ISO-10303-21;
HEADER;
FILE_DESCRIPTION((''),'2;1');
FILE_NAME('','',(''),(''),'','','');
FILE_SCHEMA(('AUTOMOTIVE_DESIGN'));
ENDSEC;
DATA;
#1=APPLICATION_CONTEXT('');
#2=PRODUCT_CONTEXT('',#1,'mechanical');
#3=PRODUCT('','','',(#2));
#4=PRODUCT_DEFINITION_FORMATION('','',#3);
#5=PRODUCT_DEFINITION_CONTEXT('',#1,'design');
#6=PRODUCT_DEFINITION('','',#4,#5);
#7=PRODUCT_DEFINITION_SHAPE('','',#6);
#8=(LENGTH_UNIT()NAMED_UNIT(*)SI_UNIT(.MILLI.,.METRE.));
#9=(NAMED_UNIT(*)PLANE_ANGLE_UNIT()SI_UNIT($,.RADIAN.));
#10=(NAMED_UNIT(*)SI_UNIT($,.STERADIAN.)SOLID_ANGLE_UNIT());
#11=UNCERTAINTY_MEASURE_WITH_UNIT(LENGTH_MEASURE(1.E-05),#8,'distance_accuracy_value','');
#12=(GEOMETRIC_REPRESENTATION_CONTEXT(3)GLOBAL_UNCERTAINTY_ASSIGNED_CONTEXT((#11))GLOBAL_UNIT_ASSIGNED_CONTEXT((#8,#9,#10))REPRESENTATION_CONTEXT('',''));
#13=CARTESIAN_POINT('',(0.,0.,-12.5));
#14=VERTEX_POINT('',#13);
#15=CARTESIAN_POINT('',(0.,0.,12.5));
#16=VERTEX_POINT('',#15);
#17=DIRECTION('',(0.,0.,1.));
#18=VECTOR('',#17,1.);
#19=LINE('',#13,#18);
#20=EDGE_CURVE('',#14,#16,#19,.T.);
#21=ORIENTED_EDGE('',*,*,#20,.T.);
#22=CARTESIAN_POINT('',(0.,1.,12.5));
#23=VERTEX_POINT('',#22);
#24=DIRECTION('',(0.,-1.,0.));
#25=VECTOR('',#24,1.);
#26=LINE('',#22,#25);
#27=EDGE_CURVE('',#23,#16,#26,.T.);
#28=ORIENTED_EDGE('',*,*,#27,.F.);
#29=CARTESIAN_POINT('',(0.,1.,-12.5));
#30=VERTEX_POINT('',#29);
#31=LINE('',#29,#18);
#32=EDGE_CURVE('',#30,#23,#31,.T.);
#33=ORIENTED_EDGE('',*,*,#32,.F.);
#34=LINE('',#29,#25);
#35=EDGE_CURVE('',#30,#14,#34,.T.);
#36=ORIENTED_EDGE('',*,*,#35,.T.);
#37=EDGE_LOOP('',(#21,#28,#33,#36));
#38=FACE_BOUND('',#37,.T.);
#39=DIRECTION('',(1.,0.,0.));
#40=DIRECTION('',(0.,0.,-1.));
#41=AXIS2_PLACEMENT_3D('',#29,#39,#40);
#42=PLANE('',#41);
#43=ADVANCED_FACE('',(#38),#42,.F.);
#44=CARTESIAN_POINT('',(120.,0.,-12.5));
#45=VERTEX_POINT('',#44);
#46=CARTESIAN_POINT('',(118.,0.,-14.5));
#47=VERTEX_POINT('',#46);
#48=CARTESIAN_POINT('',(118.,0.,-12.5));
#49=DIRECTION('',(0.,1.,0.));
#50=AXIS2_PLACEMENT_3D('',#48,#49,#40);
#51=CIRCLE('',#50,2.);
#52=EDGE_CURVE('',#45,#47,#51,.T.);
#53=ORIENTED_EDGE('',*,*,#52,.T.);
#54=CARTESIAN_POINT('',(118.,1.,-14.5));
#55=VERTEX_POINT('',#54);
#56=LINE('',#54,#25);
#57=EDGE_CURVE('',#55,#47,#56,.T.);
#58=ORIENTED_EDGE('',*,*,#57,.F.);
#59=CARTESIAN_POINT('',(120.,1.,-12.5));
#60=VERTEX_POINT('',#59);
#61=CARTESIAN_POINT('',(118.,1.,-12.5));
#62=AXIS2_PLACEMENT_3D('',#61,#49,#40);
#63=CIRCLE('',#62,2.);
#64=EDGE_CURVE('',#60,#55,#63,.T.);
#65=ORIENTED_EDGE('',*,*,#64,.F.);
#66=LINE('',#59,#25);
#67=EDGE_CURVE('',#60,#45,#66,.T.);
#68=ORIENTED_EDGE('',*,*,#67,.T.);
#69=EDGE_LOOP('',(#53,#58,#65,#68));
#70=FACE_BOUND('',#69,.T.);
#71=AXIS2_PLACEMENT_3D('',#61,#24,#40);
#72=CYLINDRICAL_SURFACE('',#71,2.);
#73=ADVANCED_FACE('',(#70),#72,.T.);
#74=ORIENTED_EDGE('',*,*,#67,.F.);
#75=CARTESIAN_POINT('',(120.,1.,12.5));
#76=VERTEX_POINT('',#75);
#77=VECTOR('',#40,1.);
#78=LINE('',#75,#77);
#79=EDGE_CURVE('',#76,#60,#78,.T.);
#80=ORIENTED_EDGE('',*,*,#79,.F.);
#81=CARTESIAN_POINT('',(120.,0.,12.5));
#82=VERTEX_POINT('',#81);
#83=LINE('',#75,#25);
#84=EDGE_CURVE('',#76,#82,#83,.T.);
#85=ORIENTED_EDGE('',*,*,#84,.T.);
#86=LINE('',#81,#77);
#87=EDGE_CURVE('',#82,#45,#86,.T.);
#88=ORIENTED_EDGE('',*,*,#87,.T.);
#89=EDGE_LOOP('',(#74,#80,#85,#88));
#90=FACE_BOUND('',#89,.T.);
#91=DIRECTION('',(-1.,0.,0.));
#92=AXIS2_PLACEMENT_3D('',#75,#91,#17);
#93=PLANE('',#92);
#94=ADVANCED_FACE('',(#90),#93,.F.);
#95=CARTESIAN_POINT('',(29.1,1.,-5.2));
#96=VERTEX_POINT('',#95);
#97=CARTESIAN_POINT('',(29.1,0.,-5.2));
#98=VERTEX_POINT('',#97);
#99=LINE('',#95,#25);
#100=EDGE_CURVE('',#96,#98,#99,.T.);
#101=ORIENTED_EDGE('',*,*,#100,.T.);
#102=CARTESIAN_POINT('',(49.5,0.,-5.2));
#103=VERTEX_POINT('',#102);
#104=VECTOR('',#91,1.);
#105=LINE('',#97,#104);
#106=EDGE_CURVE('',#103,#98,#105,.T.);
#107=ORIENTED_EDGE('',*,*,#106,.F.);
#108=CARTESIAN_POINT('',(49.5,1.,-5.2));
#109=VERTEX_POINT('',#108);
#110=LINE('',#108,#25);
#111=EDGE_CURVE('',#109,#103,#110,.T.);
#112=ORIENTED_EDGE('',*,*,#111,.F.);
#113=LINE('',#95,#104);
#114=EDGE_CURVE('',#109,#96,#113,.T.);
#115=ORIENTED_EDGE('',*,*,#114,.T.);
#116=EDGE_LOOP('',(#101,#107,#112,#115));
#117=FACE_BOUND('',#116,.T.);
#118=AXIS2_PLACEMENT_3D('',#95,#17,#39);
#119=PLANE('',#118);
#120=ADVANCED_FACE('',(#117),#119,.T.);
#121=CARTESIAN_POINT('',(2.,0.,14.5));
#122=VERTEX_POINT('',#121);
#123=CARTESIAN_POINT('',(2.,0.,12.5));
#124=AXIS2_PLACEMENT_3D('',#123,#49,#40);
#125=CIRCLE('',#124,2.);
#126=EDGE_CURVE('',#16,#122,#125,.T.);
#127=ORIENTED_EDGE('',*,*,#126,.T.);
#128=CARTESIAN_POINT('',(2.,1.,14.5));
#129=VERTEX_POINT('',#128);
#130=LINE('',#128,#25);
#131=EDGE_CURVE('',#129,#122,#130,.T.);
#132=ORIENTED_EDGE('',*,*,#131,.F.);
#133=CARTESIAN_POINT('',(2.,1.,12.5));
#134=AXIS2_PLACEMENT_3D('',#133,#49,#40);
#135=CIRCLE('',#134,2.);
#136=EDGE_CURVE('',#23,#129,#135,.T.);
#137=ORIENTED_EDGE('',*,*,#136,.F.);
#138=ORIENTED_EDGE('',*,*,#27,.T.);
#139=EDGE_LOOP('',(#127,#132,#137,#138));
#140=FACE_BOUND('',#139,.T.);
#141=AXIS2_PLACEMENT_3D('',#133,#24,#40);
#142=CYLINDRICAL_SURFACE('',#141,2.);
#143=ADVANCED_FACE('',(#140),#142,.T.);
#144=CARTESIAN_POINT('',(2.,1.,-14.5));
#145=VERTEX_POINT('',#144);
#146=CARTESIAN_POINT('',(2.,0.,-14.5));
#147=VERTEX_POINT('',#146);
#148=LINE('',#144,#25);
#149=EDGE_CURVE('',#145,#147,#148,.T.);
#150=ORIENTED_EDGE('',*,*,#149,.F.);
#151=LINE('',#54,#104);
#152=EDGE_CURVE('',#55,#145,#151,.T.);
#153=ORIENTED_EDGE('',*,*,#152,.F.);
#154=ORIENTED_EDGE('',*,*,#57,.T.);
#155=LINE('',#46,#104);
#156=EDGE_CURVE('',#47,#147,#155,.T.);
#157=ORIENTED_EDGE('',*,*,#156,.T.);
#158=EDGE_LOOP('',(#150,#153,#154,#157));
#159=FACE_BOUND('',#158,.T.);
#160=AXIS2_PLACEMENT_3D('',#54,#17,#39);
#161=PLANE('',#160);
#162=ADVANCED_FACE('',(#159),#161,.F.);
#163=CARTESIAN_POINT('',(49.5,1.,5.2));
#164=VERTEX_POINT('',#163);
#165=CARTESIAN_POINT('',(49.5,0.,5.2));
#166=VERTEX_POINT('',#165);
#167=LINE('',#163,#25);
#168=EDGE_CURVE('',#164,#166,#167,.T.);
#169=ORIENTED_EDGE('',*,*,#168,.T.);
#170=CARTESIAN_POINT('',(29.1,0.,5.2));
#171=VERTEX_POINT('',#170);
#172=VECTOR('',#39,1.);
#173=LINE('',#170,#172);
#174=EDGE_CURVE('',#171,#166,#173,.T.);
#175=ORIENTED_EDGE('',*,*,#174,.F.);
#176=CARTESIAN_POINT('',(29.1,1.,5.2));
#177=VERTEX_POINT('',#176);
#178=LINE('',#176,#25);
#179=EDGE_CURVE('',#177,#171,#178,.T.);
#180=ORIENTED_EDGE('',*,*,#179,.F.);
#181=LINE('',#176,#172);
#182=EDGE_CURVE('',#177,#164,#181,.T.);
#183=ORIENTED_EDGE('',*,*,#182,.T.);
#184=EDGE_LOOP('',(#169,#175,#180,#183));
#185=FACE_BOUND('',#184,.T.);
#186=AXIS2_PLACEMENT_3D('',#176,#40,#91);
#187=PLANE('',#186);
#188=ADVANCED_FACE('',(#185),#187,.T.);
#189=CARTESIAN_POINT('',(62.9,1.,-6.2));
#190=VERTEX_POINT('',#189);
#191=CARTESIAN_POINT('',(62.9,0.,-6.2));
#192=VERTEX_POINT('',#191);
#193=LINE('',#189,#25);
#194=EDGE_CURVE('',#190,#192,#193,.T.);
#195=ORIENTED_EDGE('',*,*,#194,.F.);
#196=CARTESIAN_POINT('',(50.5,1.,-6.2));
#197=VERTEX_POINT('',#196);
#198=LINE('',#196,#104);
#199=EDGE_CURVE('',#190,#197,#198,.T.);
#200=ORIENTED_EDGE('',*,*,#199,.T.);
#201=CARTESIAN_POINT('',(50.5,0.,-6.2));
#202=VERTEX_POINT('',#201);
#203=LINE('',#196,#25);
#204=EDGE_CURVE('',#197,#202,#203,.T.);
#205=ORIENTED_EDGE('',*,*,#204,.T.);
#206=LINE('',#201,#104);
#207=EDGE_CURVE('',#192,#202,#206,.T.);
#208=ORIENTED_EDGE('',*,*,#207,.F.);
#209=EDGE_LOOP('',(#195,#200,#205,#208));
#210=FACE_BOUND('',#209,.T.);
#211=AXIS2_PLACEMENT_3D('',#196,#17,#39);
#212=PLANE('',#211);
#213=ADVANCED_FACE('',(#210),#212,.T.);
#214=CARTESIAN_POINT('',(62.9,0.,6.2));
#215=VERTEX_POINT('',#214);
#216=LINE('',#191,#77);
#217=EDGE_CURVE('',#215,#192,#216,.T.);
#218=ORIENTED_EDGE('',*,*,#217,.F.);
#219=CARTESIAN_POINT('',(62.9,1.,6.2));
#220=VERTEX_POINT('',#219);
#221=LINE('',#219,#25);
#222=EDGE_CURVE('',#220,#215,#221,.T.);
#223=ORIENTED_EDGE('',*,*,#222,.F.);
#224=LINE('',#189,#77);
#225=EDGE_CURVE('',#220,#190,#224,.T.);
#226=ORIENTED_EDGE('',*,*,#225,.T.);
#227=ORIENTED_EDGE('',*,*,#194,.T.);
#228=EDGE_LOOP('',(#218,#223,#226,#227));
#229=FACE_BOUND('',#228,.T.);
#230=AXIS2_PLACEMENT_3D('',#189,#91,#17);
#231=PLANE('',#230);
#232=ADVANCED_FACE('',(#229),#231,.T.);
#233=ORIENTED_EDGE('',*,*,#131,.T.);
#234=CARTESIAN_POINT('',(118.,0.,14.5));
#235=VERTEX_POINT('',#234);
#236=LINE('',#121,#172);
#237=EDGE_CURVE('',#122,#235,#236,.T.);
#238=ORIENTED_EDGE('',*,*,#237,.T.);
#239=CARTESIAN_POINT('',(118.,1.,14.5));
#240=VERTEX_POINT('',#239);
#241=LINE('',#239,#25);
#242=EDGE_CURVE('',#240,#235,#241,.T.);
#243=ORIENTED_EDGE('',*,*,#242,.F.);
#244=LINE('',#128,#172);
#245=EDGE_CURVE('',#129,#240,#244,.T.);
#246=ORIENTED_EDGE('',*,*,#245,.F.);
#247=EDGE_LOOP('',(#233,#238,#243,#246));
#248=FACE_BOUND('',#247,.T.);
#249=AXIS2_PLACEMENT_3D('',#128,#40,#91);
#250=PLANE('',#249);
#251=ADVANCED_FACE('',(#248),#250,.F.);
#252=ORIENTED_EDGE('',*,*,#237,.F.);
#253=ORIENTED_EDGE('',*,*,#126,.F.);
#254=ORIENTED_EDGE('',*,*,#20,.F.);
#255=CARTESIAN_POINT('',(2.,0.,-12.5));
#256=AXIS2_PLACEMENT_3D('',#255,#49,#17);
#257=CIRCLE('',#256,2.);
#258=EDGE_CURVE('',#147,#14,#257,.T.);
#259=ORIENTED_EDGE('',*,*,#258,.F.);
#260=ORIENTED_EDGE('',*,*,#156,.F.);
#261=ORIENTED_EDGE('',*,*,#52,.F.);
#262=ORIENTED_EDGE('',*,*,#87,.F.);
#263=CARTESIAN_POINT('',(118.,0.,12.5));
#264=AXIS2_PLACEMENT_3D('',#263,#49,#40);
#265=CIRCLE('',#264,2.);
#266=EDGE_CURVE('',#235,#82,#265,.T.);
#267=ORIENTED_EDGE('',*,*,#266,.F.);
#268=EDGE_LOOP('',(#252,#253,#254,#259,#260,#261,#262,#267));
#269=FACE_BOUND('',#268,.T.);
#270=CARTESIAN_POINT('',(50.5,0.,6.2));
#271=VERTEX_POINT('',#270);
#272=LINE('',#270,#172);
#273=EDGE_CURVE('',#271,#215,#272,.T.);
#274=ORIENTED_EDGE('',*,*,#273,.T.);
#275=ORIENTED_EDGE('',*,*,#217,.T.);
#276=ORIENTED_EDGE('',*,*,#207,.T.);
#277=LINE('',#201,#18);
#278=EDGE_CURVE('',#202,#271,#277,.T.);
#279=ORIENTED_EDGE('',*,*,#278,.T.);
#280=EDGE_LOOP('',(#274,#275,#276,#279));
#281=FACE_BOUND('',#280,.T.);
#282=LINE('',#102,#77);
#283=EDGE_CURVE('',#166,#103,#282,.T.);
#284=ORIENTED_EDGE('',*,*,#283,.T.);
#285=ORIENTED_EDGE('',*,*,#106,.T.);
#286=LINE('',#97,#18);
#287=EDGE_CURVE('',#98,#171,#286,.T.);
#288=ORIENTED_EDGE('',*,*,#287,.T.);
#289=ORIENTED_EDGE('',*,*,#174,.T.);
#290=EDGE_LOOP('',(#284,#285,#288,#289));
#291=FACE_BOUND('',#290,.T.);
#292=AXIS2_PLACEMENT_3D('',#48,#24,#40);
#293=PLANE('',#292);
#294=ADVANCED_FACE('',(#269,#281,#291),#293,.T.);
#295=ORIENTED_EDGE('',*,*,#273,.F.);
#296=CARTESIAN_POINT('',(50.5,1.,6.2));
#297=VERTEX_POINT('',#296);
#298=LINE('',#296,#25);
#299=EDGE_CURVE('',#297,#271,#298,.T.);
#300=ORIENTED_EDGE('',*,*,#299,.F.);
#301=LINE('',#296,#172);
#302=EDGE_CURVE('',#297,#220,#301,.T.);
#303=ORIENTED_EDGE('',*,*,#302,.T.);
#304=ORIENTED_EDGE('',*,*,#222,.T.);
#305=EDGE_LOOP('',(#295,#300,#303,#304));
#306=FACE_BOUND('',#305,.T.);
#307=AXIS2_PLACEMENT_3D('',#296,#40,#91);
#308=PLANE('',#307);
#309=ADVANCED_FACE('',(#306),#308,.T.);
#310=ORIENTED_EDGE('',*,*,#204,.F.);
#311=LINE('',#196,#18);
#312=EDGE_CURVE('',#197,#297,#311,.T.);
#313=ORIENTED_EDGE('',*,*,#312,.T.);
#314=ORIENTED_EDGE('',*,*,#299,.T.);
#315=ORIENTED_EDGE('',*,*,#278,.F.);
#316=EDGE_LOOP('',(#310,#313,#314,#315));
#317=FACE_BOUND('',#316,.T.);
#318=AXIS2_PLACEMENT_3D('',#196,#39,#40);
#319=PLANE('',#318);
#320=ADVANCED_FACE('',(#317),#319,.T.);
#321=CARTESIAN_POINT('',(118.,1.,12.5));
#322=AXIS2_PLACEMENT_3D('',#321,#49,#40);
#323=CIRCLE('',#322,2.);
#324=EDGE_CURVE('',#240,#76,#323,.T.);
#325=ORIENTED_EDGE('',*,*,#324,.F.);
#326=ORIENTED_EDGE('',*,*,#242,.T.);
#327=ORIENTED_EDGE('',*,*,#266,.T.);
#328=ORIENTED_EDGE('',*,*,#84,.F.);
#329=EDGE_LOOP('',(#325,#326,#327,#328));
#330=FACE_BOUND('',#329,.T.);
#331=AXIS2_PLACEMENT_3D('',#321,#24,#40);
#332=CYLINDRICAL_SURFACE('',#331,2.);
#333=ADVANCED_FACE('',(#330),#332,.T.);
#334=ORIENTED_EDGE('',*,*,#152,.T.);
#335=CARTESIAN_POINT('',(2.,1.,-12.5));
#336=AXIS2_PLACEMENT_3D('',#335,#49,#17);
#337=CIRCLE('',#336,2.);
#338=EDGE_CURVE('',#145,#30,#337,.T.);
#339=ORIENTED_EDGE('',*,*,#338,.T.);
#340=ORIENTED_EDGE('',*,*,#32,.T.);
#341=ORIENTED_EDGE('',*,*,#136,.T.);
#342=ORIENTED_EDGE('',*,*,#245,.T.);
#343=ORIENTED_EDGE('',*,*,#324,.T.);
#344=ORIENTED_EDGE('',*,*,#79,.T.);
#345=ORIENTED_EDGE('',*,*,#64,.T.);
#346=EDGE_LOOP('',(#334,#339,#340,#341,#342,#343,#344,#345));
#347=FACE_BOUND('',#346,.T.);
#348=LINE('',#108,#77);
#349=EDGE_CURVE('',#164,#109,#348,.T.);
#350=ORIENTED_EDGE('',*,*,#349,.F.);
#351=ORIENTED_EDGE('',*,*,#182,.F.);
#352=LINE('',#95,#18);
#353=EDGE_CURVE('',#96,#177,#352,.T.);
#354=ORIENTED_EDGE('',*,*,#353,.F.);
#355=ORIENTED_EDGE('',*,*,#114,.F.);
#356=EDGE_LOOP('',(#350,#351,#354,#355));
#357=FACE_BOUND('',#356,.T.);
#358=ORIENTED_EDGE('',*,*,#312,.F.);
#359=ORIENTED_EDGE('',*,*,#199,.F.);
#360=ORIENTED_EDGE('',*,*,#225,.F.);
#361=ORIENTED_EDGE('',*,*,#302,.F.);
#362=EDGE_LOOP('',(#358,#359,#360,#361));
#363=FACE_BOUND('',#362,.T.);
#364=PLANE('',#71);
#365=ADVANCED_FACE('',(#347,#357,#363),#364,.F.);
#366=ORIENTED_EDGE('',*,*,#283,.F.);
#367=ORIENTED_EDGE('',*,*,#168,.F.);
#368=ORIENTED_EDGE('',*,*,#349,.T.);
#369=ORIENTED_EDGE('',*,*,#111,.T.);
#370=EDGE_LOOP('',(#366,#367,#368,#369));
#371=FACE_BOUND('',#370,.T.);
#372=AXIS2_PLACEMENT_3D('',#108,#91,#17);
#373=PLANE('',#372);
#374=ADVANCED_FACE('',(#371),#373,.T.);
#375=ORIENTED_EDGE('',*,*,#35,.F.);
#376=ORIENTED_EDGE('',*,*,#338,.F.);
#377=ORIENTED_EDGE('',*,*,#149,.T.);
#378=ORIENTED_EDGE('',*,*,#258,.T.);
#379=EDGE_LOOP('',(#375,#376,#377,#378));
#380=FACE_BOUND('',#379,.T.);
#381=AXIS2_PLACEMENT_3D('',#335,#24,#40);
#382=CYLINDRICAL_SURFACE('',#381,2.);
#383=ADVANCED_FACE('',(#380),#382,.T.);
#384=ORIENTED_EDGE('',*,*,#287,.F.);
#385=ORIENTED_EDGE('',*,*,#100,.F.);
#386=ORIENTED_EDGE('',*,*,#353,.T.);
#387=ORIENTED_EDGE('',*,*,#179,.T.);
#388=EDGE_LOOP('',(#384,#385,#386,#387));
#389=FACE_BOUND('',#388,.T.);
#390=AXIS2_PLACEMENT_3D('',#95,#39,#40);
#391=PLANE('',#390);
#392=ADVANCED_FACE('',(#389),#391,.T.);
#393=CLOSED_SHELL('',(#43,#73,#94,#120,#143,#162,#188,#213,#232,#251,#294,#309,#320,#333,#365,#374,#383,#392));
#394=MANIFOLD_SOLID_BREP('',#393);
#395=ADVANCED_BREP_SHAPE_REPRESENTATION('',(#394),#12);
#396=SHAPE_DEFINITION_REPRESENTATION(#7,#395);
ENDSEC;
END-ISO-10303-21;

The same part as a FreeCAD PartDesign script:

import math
import FreeCAD as App
import Part
import Sketcher


def add_polygon(sketch, points):
    """Adds a closed chain of lines whose ends are joined by coincident constraints."""
    first, n = sketch.GeometryCount, len(points)
    for a, b in zip(points, points[1:] + points[:1]):
        sketch.addGeometry(Part.LineSegment(App.Vector(*a, 0), App.Vector(*b, 0)), False)
    for i in range(n):
        sketch.addConstraint(Sketcher.Constraint("Coincident", first + i, 2, first + (i + 1) % n, 1))

doc = App.newDocument("Part")
params = doc.addObject("Spreadsheet::Sheet", "Params")
for row, (alias, value) in enumerate([
    ("sketch1_radius", "2 mm"),
    ("sketch1_width", "116 mm"),
    ("sketch1_height", "25 mm"),
    ("sketch1_width2", "20.4 mm"),
    ("sketch1_width3", "12.4 mm"),
    ("pad1_length", "1 mm"),
], start=1):
    params.set(f"A{row}", alias)
    params.set(f"B{row}", "=" + value)
    params.setAlias(f"B{row}", alias)

body = doc.addObject("PartDesign::Body", "Body")

sketch1 = body.newObject("Sketcher::SketchObject", "Sketch")
sketch1.AttachmentSupport = (doc.getObject("XZ_Plane"), [""])
sketch1.MapMode = "FlatFace"
sketch1.addGeometry(Part.LineSegment(App.Vector(0, -12.5, 0), App.Vector(0, 12.5, 0)), False)
sketch1.addGeometry(Part.ArcOfCircle(Part.Circle(App.Vector(2, 12.5, 0), App.Vector(0, 0, 1), 2), math.radians(90), math.radians(180)), False)
sketch1.addGeometry(Part.LineSegment(App.Vector(2, 14.5, 0), App.Vector(118, 14.5, 0)), False)
sketch1.addGeometry(Part.ArcOfCircle(Part.Circle(App.Vector(118, 12.5, 0), App.Vector(0, 0, 1), 2), math.radians(0), math.radians(90)), False)
sketch1.addGeometry(Part.LineSegment(App.Vector(120, 12.5, 0), App.Vector(120, -12.5, 0)), False)
sketch1.addGeometry(Part.ArcOfCircle(Part.Circle(App.Vector(118, -12.5, 0), App.Vector(0, 0, 1), 2), math.radians(-90), math.radians(0)), False)
sketch1.addGeometry(Part.LineSegment(App.Vector(118, -14.5, 0), App.Vector(2, -14.5, 0)), False)
sketch1.addGeometry(Part.ArcOfCircle(Part.Circle(App.Vector(2, -12.5, 0), App.Vector(0, 0, 1), 2), math.radians(-180), math.radians(-90)), False)
add_polygon(sketch1, [(49.5, 5.2), (29.1, 5.2), (29.1, -5.2), (49.5, -5.2)])
add_polygon(sketch1, [(62.9, 6.2), (50.5, 6.2), (50.5, -6.2), (62.9, -6.2)])
sketch1.addConstraint([
    Sketcher.Constraint("Tangent", 0, 2, 1, 2),
    Sketcher.Constraint("Tangent", 1, 1, 2, 1),
    Sketcher.Constraint("Tangent", 2, 2, 3, 2),
    Sketcher.Constraint("Tangent", 3, 1, 4, 1),
    Sketcher.Constraint("Tangent", 4, 2, 5, 2),
    Sketcher.Constraint("Tangent", 5, 1, 6, 1),
    Sketcher.Constraint("Tangent", 6, 2, 7, 2),
    Sketcher.Constraint("Tangent", 7, 1, 0, 1),
    Sketcher.Constraint("Vertical", 0),
    Sketcher.Constraint("Horizontal", 2),
    Sketcher.Constraint("Vertical", 4),
    Sketcher.Constraint("Horizontal", 6),
    Sketcher.Constraint("Horizontal", 8),
    Sketcher.Constraint("Vertical", 9),
    Sketcher.Constraint("Horizontal", 10),
    Sketcher.Constraint("Vertical", 11),
    Sketcher.Constraint("Horizontal", 12),
    Sketcher.Constraint("Vertical", 13),
    Sketcher.Constraint("Horizontal", 14),
    Sketcher.Constraint("Vertical", 15),
    Sketcher.Constraint("Equal", 1, 3),
    Sketcher.Constraint("Equal", 3, 5),
    Sketcher.Constraint("Equal", 5, 7),
    Sketcher.Constraint("Symmetric", 0, 2, 7, 1, -1, 1),
    Sketcher.Constraint("Equal", 14, 13),
    Sketcher.Constraint("Radius", 1, 2.0),
    Sketcher.Constraint("DistanceX", 2, 1, 2, 2, 116.0),
    Sketcher.Constraint("DistanceY", 0, 1, 0, 2, 25.0),
    Sketcher.Constraint("DistanceX", 8, 2, 8, 1, 20.4),
    Sketcher.Constraint("DistanceX", 12, 2, 12, 1, 12.4),
    Sketcher.Constraint("DistanceY", 9, 2, 9, 1, 10.4),
    Sketcher.Constraint("DistanceX", 11, 2, 12, 2, 1.0),
    Sketcher.Constraint("DistanceY", 11, 2, 12, 2, 1.0),
    Sketcher.Constraint("DistanceX", -1, 1, 8, 2, 29.1),
    Sketcher.Constraint("DistanceY", -1, 1, 8, 2, 5.2),
])
sketch1.setExpression("Constraints[33]", "Params.sketch1_radius")
sketch1.setExpression("Constraints[34]", "Params.sketch1_width")
sketch1.setExpression("Constraints[35]", "Params.sketch1_height")
sketch1.setExpression("Constraints[36]", "Params.sketch1_width2")
sketch1.setExpression("Constraints[37]", "Params.sketch1_width3")
pad1 = body.newObject("PartDesign::Pad", "Pad")
pad1.Profile = sketch1
pad1.setExpression("Length", "Params.pad1_length")
pad1.Reversed = True

doc.recompute()
